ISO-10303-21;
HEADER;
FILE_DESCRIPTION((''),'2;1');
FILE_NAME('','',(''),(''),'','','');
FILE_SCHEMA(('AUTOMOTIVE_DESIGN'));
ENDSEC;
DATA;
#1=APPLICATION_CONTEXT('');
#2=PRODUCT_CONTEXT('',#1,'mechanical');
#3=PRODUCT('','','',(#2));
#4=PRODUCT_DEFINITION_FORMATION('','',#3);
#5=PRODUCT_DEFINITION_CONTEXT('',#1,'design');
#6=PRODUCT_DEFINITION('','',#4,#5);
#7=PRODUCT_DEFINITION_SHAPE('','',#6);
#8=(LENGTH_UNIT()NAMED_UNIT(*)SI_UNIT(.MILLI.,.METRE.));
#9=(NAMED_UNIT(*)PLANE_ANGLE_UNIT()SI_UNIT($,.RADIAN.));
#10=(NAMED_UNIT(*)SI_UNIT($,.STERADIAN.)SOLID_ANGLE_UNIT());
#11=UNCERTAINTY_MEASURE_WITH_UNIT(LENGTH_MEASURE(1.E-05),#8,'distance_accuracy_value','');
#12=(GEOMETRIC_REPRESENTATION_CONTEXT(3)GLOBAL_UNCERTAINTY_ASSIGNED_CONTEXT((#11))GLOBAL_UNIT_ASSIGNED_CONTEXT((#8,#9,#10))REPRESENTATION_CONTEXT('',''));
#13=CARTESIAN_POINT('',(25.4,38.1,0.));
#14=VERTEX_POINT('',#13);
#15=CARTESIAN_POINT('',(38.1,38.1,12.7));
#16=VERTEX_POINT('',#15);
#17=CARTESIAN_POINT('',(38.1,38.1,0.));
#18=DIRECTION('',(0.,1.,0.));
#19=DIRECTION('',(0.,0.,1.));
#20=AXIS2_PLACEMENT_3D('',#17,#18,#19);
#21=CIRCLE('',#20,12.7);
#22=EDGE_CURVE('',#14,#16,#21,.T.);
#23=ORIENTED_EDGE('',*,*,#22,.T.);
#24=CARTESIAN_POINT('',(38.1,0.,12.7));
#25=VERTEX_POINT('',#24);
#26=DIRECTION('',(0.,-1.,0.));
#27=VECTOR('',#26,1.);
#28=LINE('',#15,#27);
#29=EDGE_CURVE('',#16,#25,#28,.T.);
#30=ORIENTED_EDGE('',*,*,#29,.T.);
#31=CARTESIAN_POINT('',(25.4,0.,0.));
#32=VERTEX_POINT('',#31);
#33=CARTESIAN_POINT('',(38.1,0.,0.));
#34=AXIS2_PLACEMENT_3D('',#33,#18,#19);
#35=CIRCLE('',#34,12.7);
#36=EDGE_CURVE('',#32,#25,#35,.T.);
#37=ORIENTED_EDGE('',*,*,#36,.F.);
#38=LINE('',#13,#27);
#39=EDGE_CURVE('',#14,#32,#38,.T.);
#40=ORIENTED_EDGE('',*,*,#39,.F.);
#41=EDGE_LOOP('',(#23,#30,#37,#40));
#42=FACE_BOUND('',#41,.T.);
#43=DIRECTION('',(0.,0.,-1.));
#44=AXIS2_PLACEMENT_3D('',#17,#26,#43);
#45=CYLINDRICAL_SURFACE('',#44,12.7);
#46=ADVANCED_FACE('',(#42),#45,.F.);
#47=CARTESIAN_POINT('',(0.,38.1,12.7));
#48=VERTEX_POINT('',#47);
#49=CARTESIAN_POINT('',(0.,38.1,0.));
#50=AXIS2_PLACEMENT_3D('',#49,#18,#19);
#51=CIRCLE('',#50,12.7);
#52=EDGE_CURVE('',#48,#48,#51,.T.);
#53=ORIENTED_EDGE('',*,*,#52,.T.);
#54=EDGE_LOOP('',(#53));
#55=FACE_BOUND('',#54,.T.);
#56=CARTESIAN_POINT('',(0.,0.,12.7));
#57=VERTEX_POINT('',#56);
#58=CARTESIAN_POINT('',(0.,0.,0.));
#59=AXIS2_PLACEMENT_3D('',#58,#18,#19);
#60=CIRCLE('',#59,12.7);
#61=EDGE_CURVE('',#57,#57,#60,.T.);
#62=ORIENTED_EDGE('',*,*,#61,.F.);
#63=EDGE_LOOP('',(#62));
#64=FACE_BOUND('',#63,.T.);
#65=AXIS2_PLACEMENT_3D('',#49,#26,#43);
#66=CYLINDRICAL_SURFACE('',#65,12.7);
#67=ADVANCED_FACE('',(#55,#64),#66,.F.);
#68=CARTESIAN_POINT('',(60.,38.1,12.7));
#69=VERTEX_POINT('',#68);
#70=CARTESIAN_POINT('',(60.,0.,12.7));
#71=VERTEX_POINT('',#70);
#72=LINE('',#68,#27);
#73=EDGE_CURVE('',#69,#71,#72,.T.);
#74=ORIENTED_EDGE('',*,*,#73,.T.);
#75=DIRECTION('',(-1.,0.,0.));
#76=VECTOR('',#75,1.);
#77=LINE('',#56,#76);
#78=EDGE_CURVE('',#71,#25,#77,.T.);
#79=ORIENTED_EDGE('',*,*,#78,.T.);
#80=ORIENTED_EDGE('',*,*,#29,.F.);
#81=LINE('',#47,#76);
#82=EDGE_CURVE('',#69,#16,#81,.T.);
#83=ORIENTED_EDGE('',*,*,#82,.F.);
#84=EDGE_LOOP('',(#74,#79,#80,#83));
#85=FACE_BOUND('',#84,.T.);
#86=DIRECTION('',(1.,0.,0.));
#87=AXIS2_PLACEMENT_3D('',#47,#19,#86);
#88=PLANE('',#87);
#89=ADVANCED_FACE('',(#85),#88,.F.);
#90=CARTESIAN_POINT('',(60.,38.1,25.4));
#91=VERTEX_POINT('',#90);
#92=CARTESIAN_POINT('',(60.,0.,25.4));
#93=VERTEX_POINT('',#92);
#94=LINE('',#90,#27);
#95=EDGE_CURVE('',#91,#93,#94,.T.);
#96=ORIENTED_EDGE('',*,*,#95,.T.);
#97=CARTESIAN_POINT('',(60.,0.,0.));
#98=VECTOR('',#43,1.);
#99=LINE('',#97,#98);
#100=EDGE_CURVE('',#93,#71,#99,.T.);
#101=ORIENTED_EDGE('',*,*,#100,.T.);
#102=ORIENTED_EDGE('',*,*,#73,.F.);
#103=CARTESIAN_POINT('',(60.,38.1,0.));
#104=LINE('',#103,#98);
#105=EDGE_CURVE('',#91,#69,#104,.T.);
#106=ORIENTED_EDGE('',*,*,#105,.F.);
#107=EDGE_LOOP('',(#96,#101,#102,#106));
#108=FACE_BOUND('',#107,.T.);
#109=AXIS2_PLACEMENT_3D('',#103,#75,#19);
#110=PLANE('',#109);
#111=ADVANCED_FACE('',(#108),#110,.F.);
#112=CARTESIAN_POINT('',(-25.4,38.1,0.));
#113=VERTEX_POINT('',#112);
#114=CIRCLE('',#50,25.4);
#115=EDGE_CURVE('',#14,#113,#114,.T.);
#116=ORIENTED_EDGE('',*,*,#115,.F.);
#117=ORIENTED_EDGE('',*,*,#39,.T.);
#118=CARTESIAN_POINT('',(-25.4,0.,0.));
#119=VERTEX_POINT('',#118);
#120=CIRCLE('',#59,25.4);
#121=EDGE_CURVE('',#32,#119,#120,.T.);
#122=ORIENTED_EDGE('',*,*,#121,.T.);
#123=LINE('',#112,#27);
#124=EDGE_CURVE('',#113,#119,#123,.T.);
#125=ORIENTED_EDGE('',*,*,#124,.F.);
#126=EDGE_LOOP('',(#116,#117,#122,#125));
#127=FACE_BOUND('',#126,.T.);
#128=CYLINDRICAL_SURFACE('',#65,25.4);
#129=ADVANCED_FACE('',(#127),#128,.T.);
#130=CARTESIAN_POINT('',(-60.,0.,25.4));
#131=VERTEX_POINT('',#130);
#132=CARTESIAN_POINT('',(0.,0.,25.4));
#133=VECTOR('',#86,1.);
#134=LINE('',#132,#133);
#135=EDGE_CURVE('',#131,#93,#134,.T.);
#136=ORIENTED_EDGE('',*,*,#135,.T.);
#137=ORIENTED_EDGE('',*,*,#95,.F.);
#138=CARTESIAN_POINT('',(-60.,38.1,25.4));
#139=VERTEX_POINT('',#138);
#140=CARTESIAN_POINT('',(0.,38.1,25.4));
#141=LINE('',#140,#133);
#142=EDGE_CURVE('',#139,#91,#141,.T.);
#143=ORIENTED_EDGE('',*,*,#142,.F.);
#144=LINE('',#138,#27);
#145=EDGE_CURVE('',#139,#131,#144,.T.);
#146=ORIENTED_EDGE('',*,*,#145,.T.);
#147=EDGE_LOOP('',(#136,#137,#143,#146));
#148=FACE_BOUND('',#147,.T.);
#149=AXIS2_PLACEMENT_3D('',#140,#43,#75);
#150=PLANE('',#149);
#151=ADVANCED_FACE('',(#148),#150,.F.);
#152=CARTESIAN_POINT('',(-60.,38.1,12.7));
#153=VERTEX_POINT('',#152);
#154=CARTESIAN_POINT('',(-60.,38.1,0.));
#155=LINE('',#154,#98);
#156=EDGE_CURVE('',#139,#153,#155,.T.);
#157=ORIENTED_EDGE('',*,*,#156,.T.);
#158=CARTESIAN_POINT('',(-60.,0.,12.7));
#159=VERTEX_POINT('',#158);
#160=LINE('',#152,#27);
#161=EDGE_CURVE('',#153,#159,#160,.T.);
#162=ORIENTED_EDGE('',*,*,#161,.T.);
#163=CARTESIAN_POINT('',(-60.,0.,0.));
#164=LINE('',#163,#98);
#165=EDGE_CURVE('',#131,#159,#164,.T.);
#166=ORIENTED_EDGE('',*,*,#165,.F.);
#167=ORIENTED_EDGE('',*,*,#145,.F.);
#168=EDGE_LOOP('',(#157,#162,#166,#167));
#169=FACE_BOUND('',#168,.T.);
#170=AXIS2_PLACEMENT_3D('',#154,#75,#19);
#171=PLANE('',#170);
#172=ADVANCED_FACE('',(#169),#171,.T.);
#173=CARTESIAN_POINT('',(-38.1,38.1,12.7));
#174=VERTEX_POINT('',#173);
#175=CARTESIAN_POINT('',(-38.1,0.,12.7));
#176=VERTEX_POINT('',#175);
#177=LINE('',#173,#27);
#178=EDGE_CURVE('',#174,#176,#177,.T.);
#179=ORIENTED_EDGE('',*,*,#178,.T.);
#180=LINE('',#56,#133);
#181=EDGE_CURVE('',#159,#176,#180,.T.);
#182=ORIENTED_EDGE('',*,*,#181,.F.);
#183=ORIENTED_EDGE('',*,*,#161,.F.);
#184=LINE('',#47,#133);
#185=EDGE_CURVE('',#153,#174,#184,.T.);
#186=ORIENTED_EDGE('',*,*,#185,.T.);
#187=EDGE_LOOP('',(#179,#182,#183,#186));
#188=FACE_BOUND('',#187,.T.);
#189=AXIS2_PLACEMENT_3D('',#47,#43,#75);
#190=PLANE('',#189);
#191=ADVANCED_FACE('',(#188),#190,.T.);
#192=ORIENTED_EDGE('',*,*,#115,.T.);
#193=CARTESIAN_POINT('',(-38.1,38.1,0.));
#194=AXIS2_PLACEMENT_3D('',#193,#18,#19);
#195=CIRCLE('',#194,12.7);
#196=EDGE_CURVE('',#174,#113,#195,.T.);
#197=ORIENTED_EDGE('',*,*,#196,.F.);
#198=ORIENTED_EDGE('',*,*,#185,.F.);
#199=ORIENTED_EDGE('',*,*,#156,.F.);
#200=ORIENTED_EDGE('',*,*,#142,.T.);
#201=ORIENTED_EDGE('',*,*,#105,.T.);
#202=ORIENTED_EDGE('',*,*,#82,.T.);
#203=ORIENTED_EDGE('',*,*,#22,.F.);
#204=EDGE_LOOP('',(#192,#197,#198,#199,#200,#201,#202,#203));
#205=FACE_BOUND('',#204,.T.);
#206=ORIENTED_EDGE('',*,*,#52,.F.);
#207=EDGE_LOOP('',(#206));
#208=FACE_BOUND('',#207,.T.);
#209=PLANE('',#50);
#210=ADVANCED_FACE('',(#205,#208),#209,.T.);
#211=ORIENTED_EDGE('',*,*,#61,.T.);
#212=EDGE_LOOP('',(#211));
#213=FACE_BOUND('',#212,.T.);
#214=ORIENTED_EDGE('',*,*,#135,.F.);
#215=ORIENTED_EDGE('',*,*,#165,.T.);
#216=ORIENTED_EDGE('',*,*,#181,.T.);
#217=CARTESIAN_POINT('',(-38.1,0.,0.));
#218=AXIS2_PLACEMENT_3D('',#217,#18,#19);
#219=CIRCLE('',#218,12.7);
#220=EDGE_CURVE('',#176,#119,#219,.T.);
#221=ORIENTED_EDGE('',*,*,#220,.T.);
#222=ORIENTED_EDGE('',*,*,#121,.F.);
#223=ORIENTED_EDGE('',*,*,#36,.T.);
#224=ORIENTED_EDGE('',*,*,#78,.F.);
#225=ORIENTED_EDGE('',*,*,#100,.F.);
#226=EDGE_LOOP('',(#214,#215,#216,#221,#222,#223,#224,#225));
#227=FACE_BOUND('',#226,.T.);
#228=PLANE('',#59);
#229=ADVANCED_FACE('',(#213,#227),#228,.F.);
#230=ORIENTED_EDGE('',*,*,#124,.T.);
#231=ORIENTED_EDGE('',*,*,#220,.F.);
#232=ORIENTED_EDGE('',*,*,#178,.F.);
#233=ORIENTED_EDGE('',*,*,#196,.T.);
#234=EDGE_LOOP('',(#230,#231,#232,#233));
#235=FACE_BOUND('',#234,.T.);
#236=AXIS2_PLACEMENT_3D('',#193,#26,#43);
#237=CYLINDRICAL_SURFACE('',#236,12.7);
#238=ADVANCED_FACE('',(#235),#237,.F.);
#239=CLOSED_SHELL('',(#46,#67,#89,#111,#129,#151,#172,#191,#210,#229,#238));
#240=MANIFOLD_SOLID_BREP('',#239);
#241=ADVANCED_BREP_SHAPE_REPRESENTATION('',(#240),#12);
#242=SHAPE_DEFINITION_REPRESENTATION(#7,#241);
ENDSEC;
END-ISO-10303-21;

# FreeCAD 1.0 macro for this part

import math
import FreeCAD as App
import Part
import Sketcher
from FreeCAD import Vector
Q = App.Units.Quantity

doc = App.newDocument("Part")
params = doc.addObject("Spreadsheet::Sheet", "Params")
for row, (alias, value) in enumerate([
    ("sketch1_diameter", "1 in"),
    ("sketch1_radius", "1 in"),
    ("sketch1_height", "0.5 in"),
    ("pad1_length", "1.5 in"),
], start=1):
    params.set(f"A{row}", alias)
    params.set(f"B{row}", "=" + value)
    params.setAlias(f"B{row}", alias)

body = doc.addObject("PartDesign::Body", "Body")

# Sketch on XZ plane
sketch1 = doc.addObject("Sketcher::SketchObject", "Sketch")
body.addObject(sketch1)
sketch1.AttachmentSupport = (doc.XZ_Plane, [""])
sketch1.MapMode = "FlatFace"
sketch1.addGeometry([
    Part.ArcOfCircle(Part.Circle(Vector(38, 0, 0), Vector(0, 0, 1), 13), math.radians(90), math.radians(180)),  # 0
    Part.ArcOfCircle(Part.Circle(Vector(0, 0, 0), Vector(0, 0, 1), 25), math.radians(180), math.radians(360)),  # 1
    Part.ArcOfCircle(Part.Circle(Vector(-38, 0, 0), Vector(0, 0, 1), 13), math.radians(0), math.radians(90)),  # 2
    Part.LineSegment(Vector(-38, 13, 0), Vector(-60, 13, 0)),  # 3
    Part.LineSegment(Vector(-60, 13, 0), Vector(-60, 25, 0)),  # 4
    Part.LineSegment(Vector(-60, 25, 0), Vector(60, 25, 0)),  # 5
    Part.LineSegment(Vector(60, 25, 0), Vector(60, 13, 0)),  # 6
    Part.LineSegment(Vector(60, 13, 0), Vector(38, 13, 0)),  # 7
    Part.Circle(Vector(0, 0, 0), Vector(0, 0, 1), 13),  # 8
], False)
sketch1.addConstraint([
    Sketcher.Constraint("Tangent", 0, 2, 1, 2),
    Sketcher.Constraint("Tangent", 1, 1, 2, 1),
    Sketcher.Constraint("Tangent", 2, 2, 3, 1),
    Sketcher.Constraint("Coincident", 3, 2, 4, 1),
    Sketcher.Constraint("Coincident", 4, 2, 5, 1),
    Sketcher.Constraint("Coincident", 5, 2, 6, 1),
    Sketcher.Constraint("Coincident", 6, 2, 7, 1),
    Sketcher.Constraint("Tangent", 7, 2, 0, 1),
    Sketcher.Constraint("Horizontal", 3),
    Sketcher.Constraint("Vertical", 4),
    Sketcher.Constraint("Horizontal", 5),
    Sketcher.Constraint("Vertical", 6),
    Sketcher.Constraint("Horizontal", 7),
    Sketcher.Constraint("Coincident", 1, 3, -1, 1),
    Sketcher.Constraint("Coincident", 8, 3, -1, 1),
    Sketcher.Constraint("Equal", 0, 2),
    Sketcher.Constraint("Equal", 2, 8),
    Sketcher.Constraint("Symmetric", 3, 2, 6, 2, -2),
    Sketcher.Constraint("PointOnObject", 0, 3, -1),
    Sketcher.Constraint("Diameter", 8, Q("1 in")),
    Sketcher.Constraint("Radius", 1, Q("1 in")),
    Sketcher.Constraint("DistanceY", 4, 1, 4, 2, Q("0.5 in")),
    Sketcher.Constraint("DistanceX", 3, 2, 3, 1, 21.9),
])
sketch1.setExpression("Constraints[19]", "Params.sketch1_diameter")
sketch1.setExpression("Constraints[20]", "Params.sketch1_radius")
sketch1.setExpression("Constraints[21]", "Params.sketch1_height")
pad1 = doc.addObject("PartDesign::Pad", "Pad")
body.addObject(pad1)
pad1.Profile = sketch1
pad1.setExpression("Length", "Params.pad1_length")
pad1.Reversed = True

doc.recompute()
